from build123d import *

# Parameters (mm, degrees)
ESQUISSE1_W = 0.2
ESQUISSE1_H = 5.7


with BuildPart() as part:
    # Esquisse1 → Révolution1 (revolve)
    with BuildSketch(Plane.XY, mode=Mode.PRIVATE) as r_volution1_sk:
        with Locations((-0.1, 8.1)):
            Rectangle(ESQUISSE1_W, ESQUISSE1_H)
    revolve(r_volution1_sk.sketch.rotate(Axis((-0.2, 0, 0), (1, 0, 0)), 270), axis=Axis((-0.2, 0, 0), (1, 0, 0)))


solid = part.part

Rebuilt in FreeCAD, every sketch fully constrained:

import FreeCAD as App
import Part
import Sketcher
Q = App.Units.Quantity


def add_polygon(sketch, points):
    """Adds a closed chain of lines whose ends are joined by coincident constraints."""
    first, n = sketch.GeometryCount, len(points)
    for a, b in zip(points, points[1:] + points[:1]):
        sketch.addGeometry(Part.LineSegment(App.Vector(*a, 0), App.Vector(*b, 0)), False)
    for i in range(n):
        sketch.addConstraint(Sketcher.Constraint("Coincident", first + i, 2, first + (i + 1) % n, 1))

doc = App.newDocument("Part")
body = doc.addObject("PartDesign::Body", "Body")

sketch1 = body.newObject("Sketcher::SketchObject", "Sketch")
sketch1.AttachmentSupport = (doc.getObject("XY_Plane"), [""])
sketch1.MapMode = "FlatFace"
add_polygon(sketch1, [(-0.2, 10.95), (-0.2, 5.25), (0, 5.25), (0, 10.95)])
sketch1.addConstraint([
    Sketcher.Constraint("Vertical", 0),
    Sketcher.Constraint("Horizontal", 1),
    Sketcher.Constraint("Vertical", 2),
    Sketcher.Constraint("Horizontal", 3),
    Sketcher.Constraint("PointOnObject", 1, 2, -2),
    Sketcher.Constraint("DistanceX", 1, 1, 1, 2, Q("0.2 mm")),
    Sketcher.Constraint("DistanceY", 0, 2, 0, 1, Q("5.7 mm")),
    Sketcher.Constraint("DistanceY", -1, 1, 0, 2, Q("5.25 mm")),
])
revolution = body.newObject("PartDesign::Revolution", "Revolution")
revolution.Profile = sketch1
revolution.ReferenceAxis = (sketch1, ["H_Axis"])
revolution.Angle = 360

doc.recompute()
